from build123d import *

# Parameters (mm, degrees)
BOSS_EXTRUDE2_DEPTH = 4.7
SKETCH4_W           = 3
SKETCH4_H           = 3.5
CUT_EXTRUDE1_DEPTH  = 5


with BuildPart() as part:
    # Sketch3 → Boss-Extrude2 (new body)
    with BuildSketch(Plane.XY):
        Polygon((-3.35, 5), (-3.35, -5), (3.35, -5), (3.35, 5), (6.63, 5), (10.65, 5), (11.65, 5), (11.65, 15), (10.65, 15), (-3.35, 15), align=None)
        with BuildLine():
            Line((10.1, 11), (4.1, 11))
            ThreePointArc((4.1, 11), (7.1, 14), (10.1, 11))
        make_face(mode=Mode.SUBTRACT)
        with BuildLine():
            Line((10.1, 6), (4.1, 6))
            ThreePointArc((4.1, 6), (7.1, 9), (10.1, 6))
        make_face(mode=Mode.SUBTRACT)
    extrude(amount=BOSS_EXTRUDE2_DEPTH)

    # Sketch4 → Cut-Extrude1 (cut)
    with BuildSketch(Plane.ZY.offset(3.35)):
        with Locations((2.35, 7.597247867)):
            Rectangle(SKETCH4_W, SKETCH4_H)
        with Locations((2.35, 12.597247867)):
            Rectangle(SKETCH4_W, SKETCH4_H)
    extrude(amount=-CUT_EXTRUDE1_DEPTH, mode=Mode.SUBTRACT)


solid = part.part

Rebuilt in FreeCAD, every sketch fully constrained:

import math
import FreeCAD as App
import Part
import Sketcher
from FreeCAD import Vector
Q = App.Units.Quantity

doc = App.newDocument("Part")
params = doc.addObject("Spreadsheet::Sheet", "Params")
for row, (alias, value) in enumerate([
    ("sketch1_radius", "3 mm"),
    ("sketch1_width", "15 mm"),
    ("sketch1_height", "10 mm"),
    ("sketch1_width2", "6.7 mm"),
    ("pad1_length", "4.7 mm"),
    ("sketch2_height", "3 mm"),
    ("sketch2_width", "3.5 mm"),
    ("pocket1_length", "5 mm"),
], start=1):
    params.set(f"A{row}", alias)
    params.set(f"B{row}", "=" + value)
    params.setAlias(f"B{row}", alias)

body = doc.addObject("PartDesign::Body", "Body")

sketch1 = doc.addObject("Sketcher::SketchObject", "Sketch")
body.addObject(sketch1)
sketch1.AttachmentSupport = (doc.XY_Plane, [""])
sketch1.MapMode = "FlatFace"
sketch1.addGeometry(Part.LineSegment(Vector(-3.4, -5, 0), Vector(3.4, -5, 0)), False)
sketch1.addGeometry(Part.LineSegment(Vector(3.4, -5, 0), Vector(3.4, 5, 0)), False)
sketch1.addGeometry(Part.LineSegment(Vector(3.4, 5, 0), Vector(11.7, 5, 0)), False)
sketch1.addGeometry(Part.LineSegment(Vector(11.7, 5, 0), Vector(11.7, 15, 0)), False)
sketch1.addGeometry(Part.LineSegment(Vector(11.7, 15, 0), Vector(-3.4, 15, 0)), False)
sketch1.addGeometry(Part.LineSegment(Vector(-3.4, 15, 0), Vector(-3.4, -5, 0)), False)
sketch1.addGeometry(Part.ArcOfCircle(Part.Circle(Vector(7.1, 6, 0), Vector(0, 0, 1), 3), math.radians(0), math.radians(180)), False)
sketch1.addGeometry(Part.LineSegment(Vector(10.1, 6, 0), Vector(4.1, 6, 0)), False)
sketch1.addGeometry(Part.ArcOfCircle(Part.Circle(Vector(7.1, 11, 0), Vector(0, 0, 1), 3), math.radians(0), math.radians(180)), False)
sketch1.addGeometry(Part.LineSegment(Vector(10.1, 11, 0), Vector(4.1, 11, 0)), False)
sketch1.addConstraint(Sketcher.Constraint("Coincident", 0, 2, 1, 1))
sketch1.addConstraint(Sketcher.Constraint("Coincident", 1, 2, 2, 1))
sketch1.addConstraint(Sketcher.Constraint("Coincident", 2, 2, 3, 1))
sketch1.addConstraint(Sketcher.Constraint("Coincident", 3, 2, 4, 1))
sketch1.addConstraint(Sketcher.Constraint("Coincident", 4, 2, 5, 1))
sketch1.addConstraint(Sketcher.Constraint("Coincident", 5, 2, 0, 1))
sketch1.addConstraint(Sketcher.Constraint("Coincident", 6, 1, 7, 1))
sketch1.addConstraint(Sketcher.Constraint("Coincident", 7, 2, 6, 2))
sketch1.addConstraint(Sketcher.Constraint("Coincident", 8, 1, 9, 1))
sketch1.addConstraint(Sketcher.Constraint("Coincident", 9, 2, 8, 2))
sketch1.addConstraint(Sketcher.Constraint("Horizontal", 0))
sketch1.addConstraint(Sketcher.Constraint("Vertical", 1))
sketch1.addConstraint(Sketcher.Constraint("Horizontal", 2))
sketch1.addConstraint(Sketcher.Constraint("Vertical", 3))
sketch1.addConstraint(Sketcher.Constraint("Horizontal", 4))
sketch1.addConstraint(Sketcher.Constraint("Vertical", 5))
sketch1.addConstraint(Sketcher.Constraint("Horizontal", 7))
sketch1.addConstraint(Sketcher.Constraint("Horizontal", 9))
sketch1.addConstraint(Sketcher.Constraint("Equal", 6, 8))
sketch1.addConstraint(Sketcher.Constraint("Symmetric", 1, 2, 5, 2, -1, 1))
sketch1.addConstraint(Sketcher.Constraint("Vertical", 6, 3, 8, 3))
sketch1.addConstraint(Sketcher.Constraint("Equal", 1, 3))
sketch1.addConstraint(Sketcher.Constraint("Radius", 6, Q("3 mm")))
sketch1.addConstraint(Sketcher.Constraint("DistanceX", 4, 2, 4, 1, Q("15 mm")))
sketch1.addConstraint(Sketcher.Constraint("DistanceY", 1, 1, 1, 2, Q("10 mm")))
sketch1.addConstraint(Sketcher.Constraint("DistanceX", 0, 1, 0, 2, Q("6.7 mm")))
sketch1.addConstraint(Sketcher.Constraint("DistanceY", -1, 1, 6, 3, Q("6 mm")))
sketch1.addConstraint(Sketcher.Constraint("DistanceY", -1, 1, 8, 3, Q("11 mm")))
sketch1.addConstraint(Sketcher.Constraint("DistanceY", -1, 1, 6, 1, Q("6 mm")))
sketch1.addConstraint(Sketcher.Constraint("DistanceY", -1, 1, 8, 1, Q("11 mm")))
sketch1.addConstraint(Sketcher.Constraint("DistanceX", -1, 1, 6, 3, Q("7.1 mm")))
sketch1.setExpression("Constraints[22]", "Params.sketch1_radius")
sketch1.setExpression("Constraints[23]", "Params.sketch1_width")
sketch1.setExpression("Constraints[24]", "Params.sketch1_height")
sketch1.setExpression("Constraints[25]", "Params.sketch1_width2")
pad1 = doc.addObject("PartDesign::Pad", "Pad")
body.addObject(pad1)
pad1.Profile = sketch1
pad1.setExpression("Length", "Params.pad1_length")

sketch2 = doc.addObject("Sketcher::SketchObject", "Sketch001")
body.addObject(sketch2)
sketch2.AttachmentSupport = (doc.YZ_Plane, [""])
sketch2.MapMode = "FlatFace"
sketch2.AttachmentOffset = App.Placement(Vector(0, 0, -3.35), App.Rotation())
sketch2.addGeometry(Part.LineSegment(Vector(9.3, 0.8, 0), Vector(5.8, 0.8, 0)), False)
sketch2.addGeometry(Part.LineSegment(Vector(5.8, 0.8, 0), Vector(5.8, 3.9, 0)), False)
sketch2.addGeometry(Part.LineSegment(Vector(5.8, 3.9, 0), Vector(9.3, 3.9, 0)), False)
sketch2.addGeometry(Part.LineSegment(Vector(9.3, 3.9, 0), Vector(9.3, 0.8, 0)), False)
sketch2.addGeometry(Part.LineSegment(Vector(14.3, 0.8, 0), Vector(10.8, 0.8, 0)), False)
sketch2.addGeometry(Part.LineSegment(Vector(10.8, 0.8, 0), Vector(10.8, 3.9, 0)), False)
sketch2.addGeometry(Part.LineSegment(Vector(10.8, 3.9, 0), Vector(14.3, 3.9, 0)), False)
sketch2.addGeometry(Part.LineSegment(Vector(14.3, 3.9, 0), Vector(14.3, 0.8, 0)), False)
sketch2.addConstraint(Sketcher.Constraint("Coincident", 0, 2, 1, 1))
sketch2.addConstraint(Sketcher.Constraint("Coincident", 1, 2, 2, 1))
sketch2.addConstraint(Sketcher.Constraint("Coincident", 2, 2, 3, 1))
sketch2.addConstraint(Sketcher.Constraint("Coincident", 3, 2, 0, 1))
sketch2.addConstraint(Sketcher.Constraint("Coincident", 4, 2, 5, 1))
sketch2.addConstraint(Sketcher.Constraint("Coincident", 5, 2, 6, 1))
sketch2.addConstraint(Sketcher.Constraint("Coincident", 6, 2, 7, 1))
sketch2.addConstraint(Sketcher.Constraint("Coincident", 7, 2, 4, 1))
sketch2.addConstraint(Sketcher.Constraint("Horizontal", 0))
sketch2.addConstraint(Sketcher.Constraint("Vertical", 1))
sketch2.addConstraint(Sketcher.Constraint("Horizontal", 2))
sketch2.addConstraint(Sketcher.Constraint("Vertical", 3))
sketch2.addConstraint(Sketcher.Constraint("Horizontal", 4))
sketch2.addConstraint(Sketcher.Constraint("Vertical", 5))
sketch2.addConstraint(Sketcher.Constraint("Horizontal", 6))
sketch2.addConstraint(Sketcher.Constraint("Vertical", 7))
sketch2.addConstraint(Sketcher.Constraint("Horizontal", 3, 2, 4, 2))
sketch2.addConstraint(Sketcher.Constraint("Horizontal", 2, 2, 5, 2))
sketch2.addConstraint(Sketcher.Constraint("Equal", 2, 4))
sketch2.addConstraint(Sketcher.Constraint("DistanceY", 1, 1, 1, 2, Q("3 mm")))
sketch2.addConstraint(Sketcher.Constraint("DistanceX", 0, 2, 0, 1, Q("3.5 mm")))
sketch2.addConstraint(Sketcher.Constraint("DistanceX", 0, 2, 4, 2, Q("5 mm")))
sketch2.addConstraint(Sketcher.Constraint("DistanceY", -1, 1, 0, 2, Q("0.85 mm")))
sketch2.addConstraint(Sketcher.Constraint("DistanceX", -1, 1, 0, 2, Q("5.847248 mm")))
sketch2.setExpression("Constraints[19]", "Params.sketch2_height")
sketch2.setExpression("Constraints[20]", "Params.sketch2_width")
pocket1 = doc.addObject("PartDesign::Pocket", "Pocket")
body.addObject(pocket1)
pocket1.Profile = sketch2
pocket1.setExpression("Length", "Params.pocket1_length")
pocket1.Reversed = True

doc.recompute()
